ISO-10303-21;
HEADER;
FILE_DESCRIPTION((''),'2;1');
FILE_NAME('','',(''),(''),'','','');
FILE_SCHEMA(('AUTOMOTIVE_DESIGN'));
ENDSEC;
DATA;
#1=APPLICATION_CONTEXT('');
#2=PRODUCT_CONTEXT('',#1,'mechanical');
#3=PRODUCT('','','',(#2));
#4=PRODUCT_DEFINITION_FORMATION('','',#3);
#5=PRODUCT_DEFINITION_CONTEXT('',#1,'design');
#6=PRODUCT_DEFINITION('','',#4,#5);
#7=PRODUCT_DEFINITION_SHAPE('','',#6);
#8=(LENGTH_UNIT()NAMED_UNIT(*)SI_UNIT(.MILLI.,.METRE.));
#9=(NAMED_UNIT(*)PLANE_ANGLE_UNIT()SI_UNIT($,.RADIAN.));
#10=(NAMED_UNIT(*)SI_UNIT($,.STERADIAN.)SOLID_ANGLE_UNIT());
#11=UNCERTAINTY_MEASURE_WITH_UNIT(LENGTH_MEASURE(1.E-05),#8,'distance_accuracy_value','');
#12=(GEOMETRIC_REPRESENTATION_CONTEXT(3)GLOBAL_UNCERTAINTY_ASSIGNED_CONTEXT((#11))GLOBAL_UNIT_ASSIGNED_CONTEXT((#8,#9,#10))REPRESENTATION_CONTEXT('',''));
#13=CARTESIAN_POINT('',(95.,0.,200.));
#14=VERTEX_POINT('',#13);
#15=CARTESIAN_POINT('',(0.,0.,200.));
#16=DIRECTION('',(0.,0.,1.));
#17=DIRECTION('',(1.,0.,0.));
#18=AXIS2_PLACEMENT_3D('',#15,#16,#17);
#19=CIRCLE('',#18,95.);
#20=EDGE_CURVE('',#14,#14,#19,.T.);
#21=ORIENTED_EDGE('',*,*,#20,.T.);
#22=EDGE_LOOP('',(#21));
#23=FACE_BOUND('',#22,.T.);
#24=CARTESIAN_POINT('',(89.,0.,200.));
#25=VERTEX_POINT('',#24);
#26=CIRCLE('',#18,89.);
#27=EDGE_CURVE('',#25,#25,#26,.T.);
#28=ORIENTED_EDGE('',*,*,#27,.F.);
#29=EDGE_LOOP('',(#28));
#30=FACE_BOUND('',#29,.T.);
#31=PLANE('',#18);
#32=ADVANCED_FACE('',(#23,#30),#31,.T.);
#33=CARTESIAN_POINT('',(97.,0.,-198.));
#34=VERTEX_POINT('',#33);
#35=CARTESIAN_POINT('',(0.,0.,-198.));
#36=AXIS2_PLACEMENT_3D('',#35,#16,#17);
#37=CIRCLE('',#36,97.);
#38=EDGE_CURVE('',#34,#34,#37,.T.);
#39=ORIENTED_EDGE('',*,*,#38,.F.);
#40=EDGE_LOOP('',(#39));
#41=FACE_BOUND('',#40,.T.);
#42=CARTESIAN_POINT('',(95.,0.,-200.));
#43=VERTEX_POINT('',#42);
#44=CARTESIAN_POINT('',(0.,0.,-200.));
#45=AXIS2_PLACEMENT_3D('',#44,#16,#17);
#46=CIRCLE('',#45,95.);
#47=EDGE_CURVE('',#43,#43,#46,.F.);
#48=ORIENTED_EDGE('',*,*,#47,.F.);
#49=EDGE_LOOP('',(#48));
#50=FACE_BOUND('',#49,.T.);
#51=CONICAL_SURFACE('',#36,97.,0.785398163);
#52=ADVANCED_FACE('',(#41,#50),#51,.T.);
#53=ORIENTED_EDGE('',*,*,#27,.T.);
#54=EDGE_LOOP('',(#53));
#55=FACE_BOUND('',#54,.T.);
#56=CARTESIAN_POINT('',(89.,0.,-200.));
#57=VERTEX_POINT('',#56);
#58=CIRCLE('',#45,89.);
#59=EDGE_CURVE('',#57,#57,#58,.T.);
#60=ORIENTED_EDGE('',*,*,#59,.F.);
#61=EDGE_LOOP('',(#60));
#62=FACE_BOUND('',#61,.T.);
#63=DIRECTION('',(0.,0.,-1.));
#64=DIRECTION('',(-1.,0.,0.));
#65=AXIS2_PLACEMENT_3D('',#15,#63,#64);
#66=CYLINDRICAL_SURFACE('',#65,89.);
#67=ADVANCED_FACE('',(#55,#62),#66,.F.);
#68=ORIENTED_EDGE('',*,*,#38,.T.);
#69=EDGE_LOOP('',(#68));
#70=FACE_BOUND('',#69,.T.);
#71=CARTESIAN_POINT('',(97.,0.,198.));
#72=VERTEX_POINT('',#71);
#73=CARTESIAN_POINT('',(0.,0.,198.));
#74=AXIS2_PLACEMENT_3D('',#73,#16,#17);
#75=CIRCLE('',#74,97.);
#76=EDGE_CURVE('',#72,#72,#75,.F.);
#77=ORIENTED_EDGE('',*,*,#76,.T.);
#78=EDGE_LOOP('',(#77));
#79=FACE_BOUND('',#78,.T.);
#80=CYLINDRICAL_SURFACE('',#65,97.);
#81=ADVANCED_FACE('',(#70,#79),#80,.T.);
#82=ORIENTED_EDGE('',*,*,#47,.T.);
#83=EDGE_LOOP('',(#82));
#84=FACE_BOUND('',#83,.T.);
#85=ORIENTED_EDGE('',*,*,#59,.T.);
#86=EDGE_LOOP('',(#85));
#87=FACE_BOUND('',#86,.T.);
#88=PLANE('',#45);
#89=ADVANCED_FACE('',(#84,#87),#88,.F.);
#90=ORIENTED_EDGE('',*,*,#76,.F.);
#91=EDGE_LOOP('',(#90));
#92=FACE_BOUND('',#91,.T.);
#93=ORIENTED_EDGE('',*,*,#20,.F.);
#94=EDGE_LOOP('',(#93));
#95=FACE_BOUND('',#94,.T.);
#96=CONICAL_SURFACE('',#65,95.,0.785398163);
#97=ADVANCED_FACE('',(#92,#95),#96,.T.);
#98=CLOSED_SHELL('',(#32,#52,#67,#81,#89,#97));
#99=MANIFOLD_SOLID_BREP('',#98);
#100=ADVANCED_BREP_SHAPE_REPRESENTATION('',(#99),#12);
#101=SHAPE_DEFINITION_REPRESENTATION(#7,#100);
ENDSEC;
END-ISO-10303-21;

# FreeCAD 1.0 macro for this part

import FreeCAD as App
import Part
import Sketcher
from FreeCAD import Vector


def edges_at(feature, points):
    """Names of the edges that pass closest to the given points."""
    edges = feature.Shape.Edges
    near = lambda p: min(range(len(edges)), key=lambda i: edges[i].distToShape(Part.Vertex(*p))[0])
    return sorted({f"Edge{near(p) + 1}" for p in points})

doc = App.newDocument("Part")
body = doc.addObject("PartDesign::Body", "Body")

# Sketch on XY plane
sketch1 = body.newObject("Sketcher::SketchObject", "Sketch")
sketch1.AttachmentSupport = (doc.getObject("XY_Plane"), [""])
sketch1.MapMode = "FlatFace"
sketch1.addGeometry([
    Part.Circle(Vector(0, 0, 0), Vector(0, 0, 1), 97),
    Part.Circle(Vector(0, 0, 0), Vector(0, 0, 1), 89),
], False)
sketch1.addConstraint([
    Sketcher.Constraint("Coincident", 0, 3, -1, 1),
    Sketcher.Constraint("Coincident", 1, 3, -1, 1),
    Sketcher.Constraint("Diameter", 0, 194.0),
    Sketcher.Constraint("Diameter", 1, 178.0),
])
pad1 = body.newObject("PartDesign::Pad", "Pad")
pad1.Profile = sketch1
pad1.Length = 400
pad1.Midplane = True
doc.recompute()

chamfer = body.newObject("PartDesign::Chamfer", "Chamfer")
chamfer.Base = (pad1, edges_at(pad1, [(-97, 0, -200), (-97, 0, 200)]))
chamfer.Size = 2

doc.recompute()
